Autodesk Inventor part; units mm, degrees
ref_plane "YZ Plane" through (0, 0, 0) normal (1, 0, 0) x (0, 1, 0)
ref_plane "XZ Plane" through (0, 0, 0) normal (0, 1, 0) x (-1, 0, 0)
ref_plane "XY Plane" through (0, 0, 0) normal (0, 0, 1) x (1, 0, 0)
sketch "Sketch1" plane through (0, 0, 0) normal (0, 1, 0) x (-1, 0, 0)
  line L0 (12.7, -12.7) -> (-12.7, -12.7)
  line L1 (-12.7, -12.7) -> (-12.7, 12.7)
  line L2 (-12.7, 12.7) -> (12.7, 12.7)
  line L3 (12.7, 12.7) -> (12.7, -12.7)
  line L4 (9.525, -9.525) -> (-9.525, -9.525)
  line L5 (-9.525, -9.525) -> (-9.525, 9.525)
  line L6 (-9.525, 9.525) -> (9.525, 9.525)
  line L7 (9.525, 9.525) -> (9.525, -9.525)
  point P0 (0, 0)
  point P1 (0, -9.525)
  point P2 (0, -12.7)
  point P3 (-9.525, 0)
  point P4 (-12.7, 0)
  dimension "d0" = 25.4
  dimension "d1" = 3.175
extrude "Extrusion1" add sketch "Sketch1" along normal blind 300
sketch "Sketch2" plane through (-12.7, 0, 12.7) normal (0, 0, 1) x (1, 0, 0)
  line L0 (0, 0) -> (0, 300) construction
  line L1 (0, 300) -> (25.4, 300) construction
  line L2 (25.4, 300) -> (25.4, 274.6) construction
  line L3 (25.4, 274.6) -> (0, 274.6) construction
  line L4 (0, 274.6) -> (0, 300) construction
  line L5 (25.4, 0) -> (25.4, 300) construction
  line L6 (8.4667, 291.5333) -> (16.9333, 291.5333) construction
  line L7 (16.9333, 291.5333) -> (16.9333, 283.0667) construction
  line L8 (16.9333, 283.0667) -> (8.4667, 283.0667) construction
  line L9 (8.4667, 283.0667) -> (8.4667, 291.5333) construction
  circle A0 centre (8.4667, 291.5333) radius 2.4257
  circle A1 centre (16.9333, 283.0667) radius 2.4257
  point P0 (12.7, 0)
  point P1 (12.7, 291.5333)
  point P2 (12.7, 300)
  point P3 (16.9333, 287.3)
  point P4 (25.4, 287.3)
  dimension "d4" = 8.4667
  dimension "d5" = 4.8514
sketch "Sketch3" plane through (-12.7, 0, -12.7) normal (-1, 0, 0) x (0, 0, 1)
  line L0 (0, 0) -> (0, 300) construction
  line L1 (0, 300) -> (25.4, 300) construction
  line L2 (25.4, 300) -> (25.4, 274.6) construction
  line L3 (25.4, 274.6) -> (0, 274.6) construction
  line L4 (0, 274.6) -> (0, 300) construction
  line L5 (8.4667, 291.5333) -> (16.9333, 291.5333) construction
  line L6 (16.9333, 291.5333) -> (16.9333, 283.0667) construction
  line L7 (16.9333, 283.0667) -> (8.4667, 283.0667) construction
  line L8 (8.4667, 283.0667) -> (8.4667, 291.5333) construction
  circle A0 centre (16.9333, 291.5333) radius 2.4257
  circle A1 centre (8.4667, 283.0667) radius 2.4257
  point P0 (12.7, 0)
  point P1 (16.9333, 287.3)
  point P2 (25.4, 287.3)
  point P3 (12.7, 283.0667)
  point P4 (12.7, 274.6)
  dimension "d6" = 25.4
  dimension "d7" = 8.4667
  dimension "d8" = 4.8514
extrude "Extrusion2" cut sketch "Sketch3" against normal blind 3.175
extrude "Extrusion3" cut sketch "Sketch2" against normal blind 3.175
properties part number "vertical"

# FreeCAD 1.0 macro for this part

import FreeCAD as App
import Part
import Sketcher
Q = App.Units.Quantity

doc = App.newDocument("Part")
body = doc.addObject("PartDesign::Body", "Body")

# Sketch on XZ plane
sketch1 = doc.addObject("Sketcher::SketchObject", "Sketch")
body.addObject(sketch1)
sketch1.AttachmentSupport = (doc.XZ_Plane, [""])
sketch1.MapMode = "FlatFace"
sketch1.addGeometry(Part.LineSegment(App.Vector(13, -13, 0), App.Vector(-13, -13, 0)), False)
sketch1.addGeometry(Part.LineSegment(App.Vector(-13, -13, 0), App.Vector(-13, 13, 0)), False)
sketch1.addGeometry(Part.LineSegment(App.Vector(-13, 13, 0), App.Vector(13, 13, 0)), False)
sketch1.addGeometry(Part.LineSegment(App.Vector(13, 13, 0), App.Vector(13, -13, 0)), False)
sketch1.addGeometry(Part.LineSegment(App.Vector(-10, 10, 0), App.Vector(-10, -10, 0)), False)
sketch1.addGeometry(Part.LineSegment(App.Vector(-10, -10, 0), App.Vector(10, -10, 0)), False)
sketch1.addGeometry(Part.LineSegment(App.Vector(10, -10, 0), App.Vector(10, 10, 0)), False)
sketch1.addGeometry(Part.LineSegment(App.Vector(10, 10, 0), App.Vector(-10, 10, 0)), False)
sketch1.addConstraint(Sketcher.Constraint("Coincident", 0, 2, 1, 1))
sketch1.addConstraint(Sketcher.Constraint("Coincident", 1, 2, 2, 1))
sketch1.addConstraint(Sketcher.Constraint("Coincident", 2, 2, 3, 1))
sketch1.addConstraint(Sketcher.Constraint("Coincident", 3, 2, 0, 1))
sketch1.addConstraint(Sketcher.Constraint("Coincident", 4, 2, 5, 1))
sketch1.addConstraint(Sketcher.Constraint("Coincident", 5, 2, 6, 1))
sketch1.addConstraint(Sketcher.Constraint("Coincident", 6, 2, 7, 1))
sketch1.addConstraint(Sketcher.Constraint("Coincident", 7, 2, 4, 1))
sketch1.addConstraint(Sketcher.Constraint("Horizontal", 0))
sketch1.addConstraint(Sketcher.Constraint("Vertical", 1))
sketch1.addConstraint(Sketcher.Constraint("Horizontal", 2))
sketch1.addConstraint(Sketcher.Constraint("Vertical", 3))
sketch1.addConstraint(Sketcher.Constraint("Vertical", 4))
sketch1.addConstraint(Sketcher.Constraint("Horizontal", 5))
sketch1.addConstraint(Sketcher.Constraint("Vertical", 6))
sketch1.addConstraint(Sketcher.Constraint("Horizontal", 7))
sketch1.addConstraint(Sketcher.Constraint("Symmetric", 0, 2, 2, 2, -1, 1))
sketch1.addConstraint(Sketcher.Constraint("Symmetric", 4, 2, 6, 2, -1, 1))
sketch1.addConstraint(Sketcher.Constraint("Equal", 2, 1))
sketch1.addConstraint(Sketcher.Constraint("Equal", 7, 4))
sketch1.addConstraint(Sketcher.Constraint("DistanceX", 0, 2, 0, 1, Q("1 in")))
sketch1.addConstraint(Sketcher.Constraint("DistanceX", 0, 2, 4, 2, Q("0.125 in")))
pad1 = doc.addObject("PartDesign::Pad", "Pad")
body.addObject(pad1)
pad1.Profile = sketch1
pad1.Length = 300
pad1.Reversed = True

# Sketch on YZ plane
sketch2 = doc.addObject("Sketcher::SketchObject", "Sketch001")
body.addObject(sketch2)
sketch2.AttachmentSupport = (doc.YZ_Plane, [""])
sketch2.MapMode = "FlatFace"
sketch2.AttachmentOffset = App.Placement(App.Vector(0, 0, -0.5 * 25.4), App.Rotation())
sketch2.addGeometry(Part.Circle(App.Vector(291.5, 4.2, 0), App.Vector(0, 0, 1), 2.4), False)
sketch2.addGeometry(Part.Circle(App.Vector(283.1, -4.2, 0), App.Vector(0, 0, 1), 2.4), False)
sketch2.addConstraint(Sketcher.Constraint("Equal", 0, 1))
sketch2.addConstraint(Sketcher.Constraint("Diameter", 0, Q("0.191 in")))
sketch2.addConstraint(Sketcher.Constraint("DistanceX", 1, 3, 0, 3, Q("8.4666 mm")))
sketch2.addConstraint(Sketcher.Constraint("DistanceY", 1, 3, 0, 3, Q("8.4666 mm")))
sketch2.addConstraint(Sketcher.Constraint("DistanceX", -1, 1, 0, 3, Q("11.4777 in")))
sketch2.addConstraint(Sketcher.Constraint("DistanceY", -1, 1, 0, 3, Q("4.2333 mm")))
pocket1 = doc.addObject("PartDesign::Pocket", "Pocket")
body.addObject(pocket1)
pocket1.Profile = sketch2
pocket1.Length = Q("0.125 in")
pocket1.Reversed = True

# Sketch on XY plane
sketch3 = doc.addObject("Sketcher::SketchObject", "Sketch002")
body.addObject(sketch3)
sketch3.AttachmentSupport = (doc.XY_Plane, [""])
sketch3.MapMode = "FlatFace"
sketch3.AttachmentOffset = App.Placement(App.Vector(0, 0, 0.5 * 25.4), App.Rotation())
sketch3.addGeometry(Part.Circle(App.Vector(-4.2, 291.5, 0), App.Vector(0, 0, 1), 2.4), False)
sketch3.addGeometry(Part.Circle(App.Vector(4.2, 283.1, 0), App.Vector(0, 0, 1), 2.4), False)
sketch3.addConstraint(Sketcher.Constraint("Equal", 0, 1))
sketch3.addConstraint(Sketcher.Constraint("Diameter", 0, Q("0.191 in")))
sketch3.addConstraint(Sketcher.Constraint("DistanceX", 0, 3, 1, 3, Q("8.4666 mm")))
sketch3.addConstraint(Sketcher.Constraint("DistanceY", 1, 3, 0, 3, Q("8.4666 mm")))
sketch3.addConstraint(Sketcher.Constraint("DistanceY", -1, 1, 0, 3, Q("11.4777 in")))
sketch3.addConstraint(Sketcher.Constraint("DistanceX", 0, 3, -1, 1, Q("4.2333 mm")))
pocket2 = doc.addObject("PartDesign::Pocket", "Pocket001")
body.addObject(pocket2)
pocket2.Profile = sketch3
pocket2.Length = Q("0.125 in")

doc.recompute()
